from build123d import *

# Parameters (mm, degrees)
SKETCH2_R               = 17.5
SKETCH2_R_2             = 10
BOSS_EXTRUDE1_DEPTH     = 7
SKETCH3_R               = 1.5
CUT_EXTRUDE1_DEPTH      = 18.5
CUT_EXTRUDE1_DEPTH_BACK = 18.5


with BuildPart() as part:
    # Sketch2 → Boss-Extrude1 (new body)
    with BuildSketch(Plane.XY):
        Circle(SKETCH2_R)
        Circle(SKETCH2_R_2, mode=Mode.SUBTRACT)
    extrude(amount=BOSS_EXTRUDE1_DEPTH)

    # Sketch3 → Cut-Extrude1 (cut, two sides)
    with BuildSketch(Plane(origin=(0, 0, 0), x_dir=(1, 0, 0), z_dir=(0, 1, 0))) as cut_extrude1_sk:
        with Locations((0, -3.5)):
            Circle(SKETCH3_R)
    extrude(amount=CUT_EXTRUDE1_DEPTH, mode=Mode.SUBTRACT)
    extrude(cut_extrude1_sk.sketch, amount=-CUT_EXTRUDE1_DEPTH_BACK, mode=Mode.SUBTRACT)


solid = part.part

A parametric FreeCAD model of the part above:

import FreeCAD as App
import Part
import Sketcher
Q = App.Units.Quantity

doc = App.newDocument("Part")
params = doc.addObject("Spreadsheet::Sheet", "Params")
for row, (alias, value) in enumerate([
    ("sketch1_diameter", "35 mm"),
    ("sketch1_diameter2", "20 mm"),
    ("pad1_length", "7 mm"),
    ("sketch2_diameter", "3 mm"),
], start=1):
    params.set(f"A{row}", alias)
    params.set(f"B{row}", "=" + value)
    params.setAlias(f"B{row}", alias)

body = doc.addObject("PartDesign::Body", "Body")

sketch1 = body.newObject("Sketcher::SketchObject", "Sketch")
sketch1.AttachmentSupport = (doc.getObject("XY_Plane"), [""])
sketch1.MapMode = "FlatFace"
sketch1.addGeometry([
    Part.Circle(App.Vector(0, 0, 0), App.Vector(0, 0, 1), 18),
    Part.Circle(App.Vector(0, 0, 0), App.Vector(0, 0, 1), 10),
], False)
sketch1.addConstraint([
    Sketcher.Constraint("Coincident", 0, 3, -1, 1),
    Sketcher.Constraint("Coincident", 1, 3, -1, 1),
    Sketcher.Constraint("Diameter", 0, Q("35 mm")),
    Sketcher.Constraint("Diameter", 1, Q("20 mm")),
])
sketch1.setExpression("Constraints[2]", "Params.sketch1_diameter")
sketch1.setExpression("Constraints[3]", "Params.sketch1_diameter2")
pad1 = body.newObject("PartDesign::Pad", "Pad")
pad1.Profile = sketch1
pad1.setExpression("Length", "Params.pad1_length")

sketch2 = body.newObject("Sketcher::SketchObject", "Sketch001")
sketch2.AttachmentSupport = (doc.getObject("XZ_Plane"), [""])
sketch2.MapMode = "FlatFace"
sketch2.addGeometry(Part.Circle(App.Vector(0, 3.5, 0), App.Vector(0, 0, 1), 1.5), False)
sketch2.addConstraint([
    Sketcher.Constraint("PointOnObject", 0, 3, -2),
    Sketcher.Constraint("Diameter", 0, Q("3 mm")),
    Sketcher.Constraint("DistanceY", -1, 1, 0, 3, Q("3.5 mm")),
])
sketch2.setExpression("Constraints[1]", "Params.sketch2_diameter")
pocket1 = body.newObject("PartDesign::Pocket", "Pocket")
pocket1.Profile = sketch2
pocket1.Type = "ThroughAll"
pocket1.Midplane = True

doc.recompute()
